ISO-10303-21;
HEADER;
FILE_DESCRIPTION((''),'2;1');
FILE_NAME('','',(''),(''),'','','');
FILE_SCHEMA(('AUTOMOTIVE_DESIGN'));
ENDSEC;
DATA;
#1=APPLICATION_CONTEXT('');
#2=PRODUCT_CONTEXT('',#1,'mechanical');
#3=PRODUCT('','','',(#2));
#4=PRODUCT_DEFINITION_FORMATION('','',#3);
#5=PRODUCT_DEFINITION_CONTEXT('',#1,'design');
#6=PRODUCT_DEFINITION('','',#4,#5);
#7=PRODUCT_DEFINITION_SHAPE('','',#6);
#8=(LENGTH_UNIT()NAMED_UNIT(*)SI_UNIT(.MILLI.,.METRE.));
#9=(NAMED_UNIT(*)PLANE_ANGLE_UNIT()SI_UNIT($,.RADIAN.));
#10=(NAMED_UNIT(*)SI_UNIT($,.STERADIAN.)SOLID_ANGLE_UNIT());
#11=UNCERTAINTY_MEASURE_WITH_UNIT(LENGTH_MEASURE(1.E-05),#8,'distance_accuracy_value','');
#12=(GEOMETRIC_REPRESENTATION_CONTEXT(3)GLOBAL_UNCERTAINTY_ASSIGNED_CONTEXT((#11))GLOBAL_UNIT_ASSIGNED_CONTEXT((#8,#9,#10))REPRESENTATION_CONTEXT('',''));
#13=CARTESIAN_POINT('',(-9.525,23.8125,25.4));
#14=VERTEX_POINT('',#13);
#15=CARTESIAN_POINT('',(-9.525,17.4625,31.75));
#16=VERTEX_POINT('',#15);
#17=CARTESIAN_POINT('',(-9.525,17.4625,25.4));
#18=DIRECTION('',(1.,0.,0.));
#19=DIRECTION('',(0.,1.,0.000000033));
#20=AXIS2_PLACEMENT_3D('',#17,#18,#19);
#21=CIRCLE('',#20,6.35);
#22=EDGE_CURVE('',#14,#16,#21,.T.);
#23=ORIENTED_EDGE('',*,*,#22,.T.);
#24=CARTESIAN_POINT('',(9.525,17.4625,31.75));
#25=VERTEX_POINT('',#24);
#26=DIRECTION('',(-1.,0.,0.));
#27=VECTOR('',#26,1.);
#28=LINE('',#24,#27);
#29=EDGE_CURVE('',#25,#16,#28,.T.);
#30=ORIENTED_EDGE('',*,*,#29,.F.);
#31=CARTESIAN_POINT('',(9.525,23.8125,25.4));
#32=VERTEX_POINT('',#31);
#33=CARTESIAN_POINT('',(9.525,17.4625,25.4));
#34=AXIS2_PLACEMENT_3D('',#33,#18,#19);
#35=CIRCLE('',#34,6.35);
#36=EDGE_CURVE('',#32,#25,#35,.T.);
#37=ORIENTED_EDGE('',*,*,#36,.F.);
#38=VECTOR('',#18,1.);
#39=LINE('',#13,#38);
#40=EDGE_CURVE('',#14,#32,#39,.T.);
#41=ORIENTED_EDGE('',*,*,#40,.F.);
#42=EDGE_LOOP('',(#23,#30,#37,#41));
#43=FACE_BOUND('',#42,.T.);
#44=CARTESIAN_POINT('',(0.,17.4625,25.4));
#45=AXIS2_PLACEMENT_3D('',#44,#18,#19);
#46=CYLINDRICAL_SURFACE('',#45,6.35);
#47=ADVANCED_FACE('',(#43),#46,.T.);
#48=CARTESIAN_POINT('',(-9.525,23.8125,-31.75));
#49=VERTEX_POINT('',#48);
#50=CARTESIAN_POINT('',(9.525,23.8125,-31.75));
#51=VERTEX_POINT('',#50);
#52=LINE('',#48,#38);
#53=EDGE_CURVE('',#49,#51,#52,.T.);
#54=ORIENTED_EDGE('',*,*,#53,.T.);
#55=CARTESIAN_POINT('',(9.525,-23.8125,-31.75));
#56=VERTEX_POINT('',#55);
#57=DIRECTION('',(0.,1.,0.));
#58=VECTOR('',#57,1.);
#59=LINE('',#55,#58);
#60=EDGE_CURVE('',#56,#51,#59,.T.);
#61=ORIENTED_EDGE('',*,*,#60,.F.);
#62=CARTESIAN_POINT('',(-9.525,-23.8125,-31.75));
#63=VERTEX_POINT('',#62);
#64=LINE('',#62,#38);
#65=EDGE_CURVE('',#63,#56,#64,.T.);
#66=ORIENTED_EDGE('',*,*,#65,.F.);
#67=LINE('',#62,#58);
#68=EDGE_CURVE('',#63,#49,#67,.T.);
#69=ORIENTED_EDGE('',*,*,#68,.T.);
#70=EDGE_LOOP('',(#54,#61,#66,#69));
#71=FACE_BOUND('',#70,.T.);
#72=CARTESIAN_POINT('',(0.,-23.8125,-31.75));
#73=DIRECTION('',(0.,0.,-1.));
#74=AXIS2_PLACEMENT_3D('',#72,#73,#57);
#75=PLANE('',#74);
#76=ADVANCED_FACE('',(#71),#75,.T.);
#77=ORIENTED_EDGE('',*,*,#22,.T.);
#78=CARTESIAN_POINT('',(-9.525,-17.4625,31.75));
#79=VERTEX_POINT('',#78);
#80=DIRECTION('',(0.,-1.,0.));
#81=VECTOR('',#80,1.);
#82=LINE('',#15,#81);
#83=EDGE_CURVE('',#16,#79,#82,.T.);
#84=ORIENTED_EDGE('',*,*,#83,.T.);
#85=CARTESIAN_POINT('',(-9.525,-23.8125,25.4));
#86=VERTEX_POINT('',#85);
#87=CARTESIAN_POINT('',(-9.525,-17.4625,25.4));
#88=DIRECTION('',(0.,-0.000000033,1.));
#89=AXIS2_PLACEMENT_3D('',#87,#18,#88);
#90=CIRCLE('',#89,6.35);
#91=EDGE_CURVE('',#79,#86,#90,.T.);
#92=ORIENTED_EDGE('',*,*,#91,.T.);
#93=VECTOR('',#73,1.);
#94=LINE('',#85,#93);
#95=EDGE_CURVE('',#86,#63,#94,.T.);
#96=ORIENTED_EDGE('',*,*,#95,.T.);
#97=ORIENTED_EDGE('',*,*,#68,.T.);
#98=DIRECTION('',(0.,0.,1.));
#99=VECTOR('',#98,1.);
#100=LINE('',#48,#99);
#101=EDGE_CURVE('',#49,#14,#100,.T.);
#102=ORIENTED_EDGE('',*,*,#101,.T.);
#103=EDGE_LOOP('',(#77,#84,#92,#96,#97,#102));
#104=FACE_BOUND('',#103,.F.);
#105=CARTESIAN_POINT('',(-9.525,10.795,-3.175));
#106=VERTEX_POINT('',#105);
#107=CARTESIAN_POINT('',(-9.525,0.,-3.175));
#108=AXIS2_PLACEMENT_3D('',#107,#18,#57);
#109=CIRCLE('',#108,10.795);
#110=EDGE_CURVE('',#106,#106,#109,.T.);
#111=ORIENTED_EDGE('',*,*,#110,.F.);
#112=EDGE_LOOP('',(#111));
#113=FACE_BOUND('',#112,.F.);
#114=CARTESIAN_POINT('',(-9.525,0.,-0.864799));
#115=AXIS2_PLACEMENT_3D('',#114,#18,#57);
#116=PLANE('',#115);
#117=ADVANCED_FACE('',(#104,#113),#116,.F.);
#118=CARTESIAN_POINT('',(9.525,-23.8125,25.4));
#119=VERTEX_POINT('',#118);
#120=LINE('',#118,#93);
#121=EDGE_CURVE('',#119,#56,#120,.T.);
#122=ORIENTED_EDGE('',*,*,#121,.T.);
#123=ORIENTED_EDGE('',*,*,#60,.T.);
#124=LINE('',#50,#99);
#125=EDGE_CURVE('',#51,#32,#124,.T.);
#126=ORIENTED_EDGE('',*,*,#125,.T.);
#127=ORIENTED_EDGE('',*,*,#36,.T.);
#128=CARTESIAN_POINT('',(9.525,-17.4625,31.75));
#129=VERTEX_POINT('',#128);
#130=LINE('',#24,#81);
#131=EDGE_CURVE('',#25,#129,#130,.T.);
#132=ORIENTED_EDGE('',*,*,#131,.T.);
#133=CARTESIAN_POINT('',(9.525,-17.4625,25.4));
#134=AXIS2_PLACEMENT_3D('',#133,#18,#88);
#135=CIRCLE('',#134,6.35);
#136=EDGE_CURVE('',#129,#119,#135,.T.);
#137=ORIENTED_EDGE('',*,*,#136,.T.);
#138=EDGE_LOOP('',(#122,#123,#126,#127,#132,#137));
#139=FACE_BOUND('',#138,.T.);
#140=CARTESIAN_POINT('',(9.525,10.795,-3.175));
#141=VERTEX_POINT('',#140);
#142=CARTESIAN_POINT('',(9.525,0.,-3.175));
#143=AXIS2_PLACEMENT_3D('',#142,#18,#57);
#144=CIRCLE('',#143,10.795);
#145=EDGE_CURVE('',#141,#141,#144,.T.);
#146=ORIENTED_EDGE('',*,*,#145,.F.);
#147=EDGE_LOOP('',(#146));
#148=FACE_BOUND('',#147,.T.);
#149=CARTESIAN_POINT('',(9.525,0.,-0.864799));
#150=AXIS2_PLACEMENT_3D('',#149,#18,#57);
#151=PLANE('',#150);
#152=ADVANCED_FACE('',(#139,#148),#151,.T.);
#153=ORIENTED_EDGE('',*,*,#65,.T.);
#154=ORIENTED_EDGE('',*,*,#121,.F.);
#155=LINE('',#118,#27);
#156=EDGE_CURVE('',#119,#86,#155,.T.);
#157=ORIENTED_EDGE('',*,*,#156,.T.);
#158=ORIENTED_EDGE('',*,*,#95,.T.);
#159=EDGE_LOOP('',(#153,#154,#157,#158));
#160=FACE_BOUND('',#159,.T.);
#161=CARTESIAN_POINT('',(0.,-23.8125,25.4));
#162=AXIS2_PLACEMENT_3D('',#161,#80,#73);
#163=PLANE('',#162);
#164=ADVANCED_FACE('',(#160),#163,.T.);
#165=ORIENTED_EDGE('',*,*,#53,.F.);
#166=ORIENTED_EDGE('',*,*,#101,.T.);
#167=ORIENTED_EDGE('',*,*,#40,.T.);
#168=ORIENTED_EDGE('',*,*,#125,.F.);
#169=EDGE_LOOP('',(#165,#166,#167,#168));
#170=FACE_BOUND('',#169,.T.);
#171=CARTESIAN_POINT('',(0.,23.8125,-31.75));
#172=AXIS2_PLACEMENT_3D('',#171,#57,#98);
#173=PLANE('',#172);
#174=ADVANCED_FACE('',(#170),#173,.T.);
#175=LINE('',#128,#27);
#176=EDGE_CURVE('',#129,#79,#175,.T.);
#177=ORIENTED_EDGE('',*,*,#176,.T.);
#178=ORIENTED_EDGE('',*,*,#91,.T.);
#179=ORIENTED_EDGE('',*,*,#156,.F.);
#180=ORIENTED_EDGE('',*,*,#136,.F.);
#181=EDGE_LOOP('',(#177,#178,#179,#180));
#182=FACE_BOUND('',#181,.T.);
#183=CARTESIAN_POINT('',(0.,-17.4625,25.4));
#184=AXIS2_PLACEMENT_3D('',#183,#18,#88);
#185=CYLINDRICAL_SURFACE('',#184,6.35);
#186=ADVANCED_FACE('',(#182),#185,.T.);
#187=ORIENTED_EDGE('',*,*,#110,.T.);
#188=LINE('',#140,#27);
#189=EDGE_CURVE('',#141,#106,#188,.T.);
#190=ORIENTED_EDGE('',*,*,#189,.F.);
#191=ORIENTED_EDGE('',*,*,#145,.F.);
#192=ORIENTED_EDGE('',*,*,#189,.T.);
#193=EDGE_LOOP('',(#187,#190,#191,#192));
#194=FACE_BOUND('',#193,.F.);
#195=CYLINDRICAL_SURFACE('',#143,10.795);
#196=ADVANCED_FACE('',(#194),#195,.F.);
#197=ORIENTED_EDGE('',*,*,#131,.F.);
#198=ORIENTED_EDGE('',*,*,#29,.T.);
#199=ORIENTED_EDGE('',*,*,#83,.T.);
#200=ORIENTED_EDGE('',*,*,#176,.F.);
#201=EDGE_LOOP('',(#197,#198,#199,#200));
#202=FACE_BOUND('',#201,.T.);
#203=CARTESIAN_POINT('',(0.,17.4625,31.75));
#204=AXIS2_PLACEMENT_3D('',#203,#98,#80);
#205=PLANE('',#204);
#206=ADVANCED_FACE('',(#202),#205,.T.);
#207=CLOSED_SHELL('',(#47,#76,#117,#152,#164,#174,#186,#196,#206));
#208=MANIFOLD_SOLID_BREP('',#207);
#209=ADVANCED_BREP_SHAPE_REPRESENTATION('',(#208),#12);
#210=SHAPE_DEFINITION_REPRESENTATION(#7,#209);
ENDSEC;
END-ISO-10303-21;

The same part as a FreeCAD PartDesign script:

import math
import FreeCAD as App
import Part
import Sketcher
from FreeCAD import Vector
Q = App.Units.Quantity

doc = App.newDocument("Part")
params = doc.addObject("Spreadsheet::Sheet", "Params")
for row, (alias, value) in enumerate([
    ("sketch1_radius", "0.25 in"),
    ("sketch1_height", "2.25 in"),
    ("sketch1_width", "1.875 in"),
    ("pad1_length", "0.75 in"),
    ("sketch2_diameter", "0.85 in"),
    ("pocket1_length", "1 in"),
], start=1):
    params.set(f"A{row}", alias)
    params.set(f"B{row}", "=" + value)
    params.setAlias(f"B{row}", alias)

body = doc.addObject("PartDesign::Body", "Body")

# Sketch on YZ plane
sketch1 = body.newObject("Sketcher::SketchObject", "Sketch")
sketch1.AttachmentSupport = (doc.getObject("YZ_Plane"), [""])
sketch1.MapMode = "FlatFace"
sketch1.addGeometry([
    Part.LineSegment(Vector(-24, 25, 0), Vector(-24, -32, 0)),  # 0
    Part.LineSegment(Vector(-24, -32, 0), Vector(24, -32, 0)),  # 1
    Part.LineSegment(Vector(24, -32, 0), Vector(24, 25, 0)),  # 2
    Part.ArcOfCircle(Part.Circle(Vector(17, 25, 0), Vector(0, 0, 1), 6), math.radians(0), math.radians(90)),  # 3
    Part.LineSegment(Vector(17, 32, 0), Vector(-17, 32, 0)),  # 4
    Part.ArcOfCircle(Part.Circle(Vector(-17, 25, 0), Vector(0, 0, 1), 6), math.radians(90), math.radians(180)),  # 5
], False)
sketch1.addConstraint([
    Sketcher.Constraint("Coincident", 0, 2, 1, 1),
    Sketcher.Constraint("Coincident", 1, 2, 2, 1),
    Sketcher.Constraint("Tangent", 2, 2, 3, 1),
    Sketcher.Constraint("Tangent", 3, 2, 4, 1),
    Sketcher.Constraint("Tangent", 4, 2, 5, 1),
    Sketcher.Constraint("Tangent", 5, 2, 0, 1),
    Sketcher.Constraint("Vertical", 0),
    Sketcher.Constraint("Horizontal", 1),
    Sketcher.Constraint("Vertical", 2),
    Sketcher.Constraint("Horizontal", 4),
    Sketcher.Constraint("Equal", 3, 5),
    Sketcher.Constraint("Radius", 3, Q("0.25 in")),
    Sketcher.Constraint("DistanceY", -1, 1, 3, 3, Q("1 in")),
    Sketcher.Constraint("DistanceY", 0, 2, 0, 1, Q("2.25 in")),
    Sketcher.Constraint("DistanceX", 1, 1, 1, 2, Q("1.875 in")),
    Sketcher.Constraint("DistanceX", -1, 1, 3, 3, Q("0.6875 in")),
])
sketch1.setExpression("Constraints[11]", "Params.sketch1_radius")
sketch1.setExpression("Constraints[13]", "Params.sketch1_height")
sketch1.setExpression("Constraints[14]", "Params.sketch1_width")
pad1 = body.newObject("PartDesign::Pad", "Pad")
pad1.Profile = sketch1
pad1.setExpression("Length", "Params.pad1_length")
pad1.Midplane = True

# Sketch on YZ plane
sketch2 = body.newObject("Sketcher::SketchObject", "Sketch001")
sketch2.AttachmentSupport = (doc.getObject("YZ_Plane"), [""])
sketch2.MapMode = "FlatFace"
sketch2.AttachmentOffset = App.Placement(Vector(0, 0, 0.375 * 25.4), App.Rotation())
sketch2.addGeometry(Part.Circle(Vector(0, -3, 0), Vector(0, 0, 1), 11), False)
sketch2.addConstraint([
    Sketcher.Constraint("PointOnObject", 0, 3, -2),
    Sketcher.Constraint("Diameter", 0, Q("0.85 in")),
    Sketcher.Constraint("DistanceY", 0, 3, -1, 1, Q("0.125 in")),
])
sketch2.setExpression("Constraints[1]", "Params.sketch2_diameter")
pocket1 = body.newObject("PartDesign::Pocket", "Pocket")
pocket1.Profile = sketch2
pocket1.setExpression("Length", "Params.pocket1_length")

doc.recompute()
